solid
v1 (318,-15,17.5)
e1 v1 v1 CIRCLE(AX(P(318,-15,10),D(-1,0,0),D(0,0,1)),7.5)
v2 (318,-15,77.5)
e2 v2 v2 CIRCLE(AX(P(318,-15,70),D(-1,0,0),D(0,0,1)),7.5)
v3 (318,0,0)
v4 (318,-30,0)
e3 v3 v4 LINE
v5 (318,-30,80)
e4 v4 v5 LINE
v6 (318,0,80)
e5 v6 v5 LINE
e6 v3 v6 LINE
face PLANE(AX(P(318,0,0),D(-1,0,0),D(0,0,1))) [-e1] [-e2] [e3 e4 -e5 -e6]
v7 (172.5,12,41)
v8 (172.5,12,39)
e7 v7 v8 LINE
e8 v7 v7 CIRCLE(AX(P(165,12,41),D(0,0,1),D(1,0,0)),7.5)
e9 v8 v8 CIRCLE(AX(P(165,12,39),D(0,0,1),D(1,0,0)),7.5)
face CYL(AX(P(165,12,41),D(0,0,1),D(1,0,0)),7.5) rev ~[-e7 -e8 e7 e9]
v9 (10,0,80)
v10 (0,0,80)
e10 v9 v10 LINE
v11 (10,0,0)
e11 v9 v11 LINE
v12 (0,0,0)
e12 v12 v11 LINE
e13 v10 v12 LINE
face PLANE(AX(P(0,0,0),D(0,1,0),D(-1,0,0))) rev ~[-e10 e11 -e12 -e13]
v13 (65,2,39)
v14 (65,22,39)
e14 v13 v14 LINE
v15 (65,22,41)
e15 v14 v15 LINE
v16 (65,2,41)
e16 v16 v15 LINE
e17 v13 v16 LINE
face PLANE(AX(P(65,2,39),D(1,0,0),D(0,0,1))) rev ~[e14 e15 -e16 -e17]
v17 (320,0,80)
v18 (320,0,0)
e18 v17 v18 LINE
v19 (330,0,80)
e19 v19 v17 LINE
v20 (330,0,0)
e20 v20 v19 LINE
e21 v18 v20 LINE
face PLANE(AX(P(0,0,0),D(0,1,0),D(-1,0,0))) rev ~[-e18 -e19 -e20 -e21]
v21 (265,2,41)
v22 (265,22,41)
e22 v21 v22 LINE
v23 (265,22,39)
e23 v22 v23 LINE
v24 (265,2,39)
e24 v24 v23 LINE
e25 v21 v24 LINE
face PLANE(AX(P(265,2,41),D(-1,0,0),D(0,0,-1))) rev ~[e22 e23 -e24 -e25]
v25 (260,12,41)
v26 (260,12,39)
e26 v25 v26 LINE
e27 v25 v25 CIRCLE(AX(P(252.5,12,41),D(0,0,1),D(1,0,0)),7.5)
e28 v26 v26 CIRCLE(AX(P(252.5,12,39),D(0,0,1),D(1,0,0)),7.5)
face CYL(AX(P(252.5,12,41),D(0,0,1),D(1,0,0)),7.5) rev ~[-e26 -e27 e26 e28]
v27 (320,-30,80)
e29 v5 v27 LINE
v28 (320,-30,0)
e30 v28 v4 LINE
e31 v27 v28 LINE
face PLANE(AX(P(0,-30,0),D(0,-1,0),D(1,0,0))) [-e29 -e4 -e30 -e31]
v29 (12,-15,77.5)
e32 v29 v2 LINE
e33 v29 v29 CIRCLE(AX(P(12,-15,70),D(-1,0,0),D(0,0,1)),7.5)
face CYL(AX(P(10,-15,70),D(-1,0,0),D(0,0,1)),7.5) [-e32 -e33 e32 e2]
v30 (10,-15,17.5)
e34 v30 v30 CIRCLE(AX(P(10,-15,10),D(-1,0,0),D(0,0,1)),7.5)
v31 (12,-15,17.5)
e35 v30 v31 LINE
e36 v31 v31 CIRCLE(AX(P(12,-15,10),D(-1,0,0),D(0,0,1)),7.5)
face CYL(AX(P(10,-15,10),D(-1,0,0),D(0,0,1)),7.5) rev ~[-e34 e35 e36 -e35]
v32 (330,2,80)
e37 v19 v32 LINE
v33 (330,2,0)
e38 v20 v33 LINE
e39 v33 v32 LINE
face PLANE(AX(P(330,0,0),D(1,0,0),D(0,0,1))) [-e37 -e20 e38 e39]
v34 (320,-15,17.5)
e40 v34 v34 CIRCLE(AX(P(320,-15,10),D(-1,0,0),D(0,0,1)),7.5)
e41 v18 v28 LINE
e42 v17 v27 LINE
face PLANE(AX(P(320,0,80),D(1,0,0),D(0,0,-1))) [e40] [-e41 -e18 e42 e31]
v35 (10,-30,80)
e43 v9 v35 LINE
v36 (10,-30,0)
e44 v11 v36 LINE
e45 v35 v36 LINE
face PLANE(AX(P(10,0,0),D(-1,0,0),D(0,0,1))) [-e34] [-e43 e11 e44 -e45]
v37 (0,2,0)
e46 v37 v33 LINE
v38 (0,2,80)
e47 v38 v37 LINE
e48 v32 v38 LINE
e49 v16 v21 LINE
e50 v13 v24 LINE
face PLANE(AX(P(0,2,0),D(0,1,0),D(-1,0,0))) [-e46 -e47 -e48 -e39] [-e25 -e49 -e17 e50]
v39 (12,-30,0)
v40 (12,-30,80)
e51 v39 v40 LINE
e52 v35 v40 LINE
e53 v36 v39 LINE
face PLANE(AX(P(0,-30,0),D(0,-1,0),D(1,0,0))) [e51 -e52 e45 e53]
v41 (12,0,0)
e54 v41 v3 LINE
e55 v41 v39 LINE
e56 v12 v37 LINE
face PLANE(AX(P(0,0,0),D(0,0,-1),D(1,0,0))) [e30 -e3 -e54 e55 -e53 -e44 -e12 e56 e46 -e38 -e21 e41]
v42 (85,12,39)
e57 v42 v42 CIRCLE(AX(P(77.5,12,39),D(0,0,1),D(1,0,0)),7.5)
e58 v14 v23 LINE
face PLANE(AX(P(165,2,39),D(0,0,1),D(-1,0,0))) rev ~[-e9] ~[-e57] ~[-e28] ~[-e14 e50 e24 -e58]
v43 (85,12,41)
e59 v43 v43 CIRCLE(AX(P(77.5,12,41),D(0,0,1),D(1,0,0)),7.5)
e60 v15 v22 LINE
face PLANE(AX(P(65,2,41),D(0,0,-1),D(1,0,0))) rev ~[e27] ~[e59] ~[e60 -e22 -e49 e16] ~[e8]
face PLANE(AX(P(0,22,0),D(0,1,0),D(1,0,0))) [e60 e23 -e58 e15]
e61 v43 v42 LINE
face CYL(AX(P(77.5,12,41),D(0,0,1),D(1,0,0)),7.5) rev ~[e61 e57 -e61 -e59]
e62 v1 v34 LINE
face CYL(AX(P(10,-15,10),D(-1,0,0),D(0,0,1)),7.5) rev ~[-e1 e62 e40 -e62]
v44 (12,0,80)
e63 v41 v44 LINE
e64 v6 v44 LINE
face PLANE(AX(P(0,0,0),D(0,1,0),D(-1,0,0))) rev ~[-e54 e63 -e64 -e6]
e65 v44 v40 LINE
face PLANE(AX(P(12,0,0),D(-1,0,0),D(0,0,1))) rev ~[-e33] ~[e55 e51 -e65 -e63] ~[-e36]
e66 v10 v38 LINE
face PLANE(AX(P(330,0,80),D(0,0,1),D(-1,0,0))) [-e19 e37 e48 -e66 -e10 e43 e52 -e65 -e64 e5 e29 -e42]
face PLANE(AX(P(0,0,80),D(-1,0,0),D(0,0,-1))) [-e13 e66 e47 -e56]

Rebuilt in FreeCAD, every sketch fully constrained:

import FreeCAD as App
import Part
import Sketcher

doc = App.newDocument("Part")
body = doc.addObject("PartDesign::Body", "Body")

sketch1 = body.newObject("Sketcher::SketchObject", "Sketch")
sketch1.AttachmentSupport = (doc.getObject("XZ_Plane"), [""])
sketch1.MapMode = "FlatFace"
sketch1.addGeometry(Part.LineSegment(App.Vector(330, 0, 0), App.Vector(0, 0, 0)), False)
sketch1.addGeometry(Part.LineSegment(App.Vector(0, 0, 0), App.Vector(0, 80, 0)), False)
sketch1.addGeometry(Part.LineSegment(App.Vector(0, 80, 0), App.Vector(330, 80, 0)), False)
sketch1.addGeometry(Part.LineSegment(App.Vector(330, 80, 0), App.Vector(330, 0, 0)), False)
sketch1.addConstraint(Sketcher.Constraint("Coincident", 0, 2, 1, 1))
sketch1.addConstraint(Sketcher.Constraint("Coincident", 1, 2, 2, 1))
sketch1.addConstraint(Sketcher.Constraint("Coincident", 2, 2, 3, 1))
sketch1.addConstraint(Sketcher.Constraint("Coincident", 3, 2, 0, 1))
sketch1.addConstraint(Sketcher.Constraint("Horizontal", 0))
sketch1.addConstraint(Sketcher.Constraint("Vertical", 1))
sketch1.addConstraint(Sketcher.Constraint("Horizontal", 2))
sketch1.addConstraint(Sketcher.Constraint("Vertical", 3))
sketch1.addConstraint(Sketcher.Constraint("Coincident", 0, 2, -1, 1))
sketch1.addConstraint(Sketcher.Constraint("DistanceX", 0, 2, 0, 1, 330.0))
sketch1.addConstraint(Sketcher.Constraint("DistanceY", 1, 1, 1, 2, 80.0))
pad1 = body.newObject("PartDesign::Pad", "Pad")
pad1.Profile = sketch1
pad1.Length = 2
pad1.Reversed = True

sketch2 = body.newObject("Sketcher::SketchObject", "Sketch001")
sketch2.AttachmentSupport = (doc.getObject("XZ_Plane"), [""])
sketch2.MapMode = "FlatFace"
sketch2.AttachmentOffset = App.Placement(App.Vector(0, 0, -2), App.Rotation())
sketch2.addGeometry(Part.LineSegment(App.Vector(265, 39, 0), App.Vector(65, 39, 0)), False)
sketch2.addGeometry(Part.LineSegment(App.Vector(65, 39, 0), App.Vector(65, 41, 0)), False)
sketch2.addGeometry(Part.LineSegment(App.Vector(65, 41, 0), App.Vector(265, 41, 0)), False)
sketch2.addGeometry(Part.LineSegment(App.Vector(265, 41, 0), App.Vector(265, 39, 0)), False)
sketch2.addConstraint(Sketcher.Constraint("Coincident", 0, 2, 1, 1))
sketch2.addConstraint(Sketcher.Constraint("Coincident", 1, 2, 2, 1))
sketch2.addConstraint(Sketcher.Constraint("Coincident", 2, 2, 3, 1))
sketch2.addConstraint(Sketcher.Constraint("Coincident", 3, 2, 0, 1))
sketch2.addConstraint(Sketcher.Constraint("Horizontal", 0))
sketch2.addConstraint(Sketcher.Constraint("Vertical", 1))
sketch2.addConstraint(Sketcher.Constraint("Horizontal", 2))
sketch2.addConstraint(Sketcher.Constraint("Vertical", 3))
sketch2.addConstraint(Sketcher.Constraint("DistanceX", 0, 2, 0, 1, 200.0))
sketch2.addConstraint(Sketcher.Constraint("DistanceY", 1, 1, 1, 2, 2.0))
sketch2.addConstraint(Sketcher.Constraint("DistanceX", -1, 1, 0, 2, 65.0))
sketch2.addConstraint(Sketcher.Constraint("DistanceY", -1, 1, 0, 2, 39.0))
pad2 = body.newObject("PartDesign::Pad", "Pad001")
pad2.Profile = sketch2
pad2.Length = 20
pad2.Reversed = True

sketch3 = body.newObject("Sketcher::SketchObject", "Sketch002")
sketch3.AttachmentSupport = (doc.getObject("XY_Plane"), [""])
sketch3.MapMode = "FlatFace"
sketch3.AttachmentOffset = App.Placement(App.Vector(0, 0, 41), App.Rotation())
sketch3.addGeometry(Part.Circle(App.Vector(165, 12, 0), App.Vector(0, 0, 1), 8), False)
sketch3.addGeometry(Part.Circle(App.Vector(78, 12, 0), App.Vector(0, 0, 1), 8), False)
sketch3.addGeometry(Part.Circle(App.Vector(252, 12, 0), App.Vector(0, 0, 1), 8), False)
sketch3.addConstraint(Sketcher.Constraint("Equal", 0, 1))
sketch3.addConstraint(Sketcher.Constraint("Equal", 1, 2))
sketch3.addConstraint(Sketcher.Constraint("Horizontal", 0, 3, 1, 3))
sketch3.addConstraint(Sketcher.Constraint("Horizontal", 1, 3, 2, 3))
sketch3.addConstraint(Sketcher.Constraint("Diameter", 0, 15.0))
sketch3.addConstraint(Sketcher.Constraint("DistanceX", -1, 1, 0, 3, 165.0))
sketch3.addConstraint(Sketcher.Constraint("DistanceY", -1, 1, 0, 3, 12.0))
sketch3.addConstraint(Sketcher.Constraint("DistanceX", 1, 3, 2, 3, 175.0))
sketch3.addConstraint(Sketcher.Constraint("DistanceX", -1, 1, 1, 3, 77.5))
pocket1 = body.newObject("PartDesign::Pocket", "Pocket")
pocket1.Profile = sketch3
pocket1.Type = "ThroughAll"

sketch4 = body.newObject("Sketcher::SketchObject", "Sketch003")
sketch4.AttachmentSupport = (doc.getObject("XZ_Plane"), [""])
sketch4.MapMode = "FlatFace"
sketch4.addGeometry(Part.LineSegment(App.Vector(12, 80, 0), App.Vector(10, 80, 0)), False)
sketch4.addGeometry(Part.LineSegment(App.Vector(10, 80, 0), App.Vector(10, 0, 0)), False)
sketch4.addGeometry(Part.LineSegment(App.Vector(10, 0, 0), App.Vector(12, 0, 0)), False)
sketch4.addGeometry(Part.LineSegment(App.Vector(12, 0, 0), App.Vector(12, 80, 0)), False)
sketch4.addGeometry(Part.LineSegment(App.Vector(320, 80, 0), App.Vector(318, 80, 0)), False)
sketch4.addGeometry(Part.LineSegment(App.Vector(318, 80, 0), App.Vector(318, 0, 0)), False)
sketch4.addGeometry(Part.LineSegment(App.Vector(318, 0, 0), App.Vector(320, 0, 0)), False)
sketch4.addGeometry(Part.LineSegment(App.Vector(320, 0, 0), App.Vector(320, 80, 0)), False)
sketch4.addConstraint(Sketcher.Constraint("Coincident", 0, 2, 1, 1))
sketch4.addConstraint(Sketcher.Constraint("Coincident", 1, 2, 2, 1))
sketch4.addConstraint(Sketcher.Constraint("Coincident", 2, 2, 3, 1))
sketch4.addConstraint(Sketcher.Constraint("Coincident", 3, 2, 0, 1))
sketch4.addConstraint(Sketcher.Constraint("Coincident", 4, 2, 5, 1))
sketch4.addConstraint(Sketcher.Constraint("Coincident", 5, 2, 6, 1))
sketch4.addConstraint(Sketcher.Constraint("Coincident", 6, 2, 7, 1))
sketch4.addConstraint(Sketcher.Constraint("Coincident", 7, 2, 4, 1))
sketch4.addConstraint(Sketcher.Constraint("Horizontal", 0))
sketch4.addConstraint(Sketcher.Constraint("Vertical", 1))
sketch4.addConstraint(Sketcher.Constraint("Horizontal", 2))
sketch4.addConstraint(Sketcher.Constraint("Vertical", 3))
sketch4.addConstraint(Sketcher.Constraint("Horizontal", 4))
sketch4.addConstraint(Sketcher.Constraint("Vertical", 5))
sketch4.addConstraint(Sketcher.Constraint("Horizontal", 6))
sketch4.addConstraint(Sketcher.Constraint("Vertical", 7))
sketch4.addConstraint(Sketcher.Constraint("PointOnObject", 1, 2, -1))
sketch4.addConstraint(Sketcher.Constraint("PointOnObject", 5, 2, -1))
sketch4.addConstraint(Sketcher.Constraint("Horizontal", 3, 2, 4, 2))
sketch4.addConstraint(Sketcher.Constraint("Equal", 2, 4))
sketch4.addConstraint(Sketcher.Constraint("DistanceX", 0, 2, 0, 1, 2.0))
sketch4.addConstraint(Sketcher.Constraint("DistanceY", 1, 2, 1, 1, 80.0))
sketch4.addConstraint(Sketcher.Constraint("DistanceX", -1, 1, 0, 2, 10.0))
sketch4.addConstraint(Sketcher.Constraint("DistanceX", -1, 1, 4, 2, 318.0))
pad3 = body.newObject("PartDesign::Pad", "Pad002")
pad3.Profile = sketch4
pad3.Length = 30

sketch5 = body.newObject("Sketcher::SketchObject", "Sketch004")
sketch5.AttachmentSupport = (doc.getObject("YZ_Plane"), [""])
sketch5.MapMode = "FlatFace"
sketch5.AttachmentOffset = App.Placement(App.Vector(0, 0, 10), App.Rotation())
sketch5.addGeometry(Part.Circle(App.Vector(-15, 70, 0), App.Vector(0, 0, 1), 8), False)
sketch5.addConstraint(Sketcher.Constraint("Diameter", 0, 15.0))
sketch5.addConstraint(Sketcher.Constraint("DistanceX", 0, 3, -1, 1, 15.0))
sketch5.addConstraint(Sketcher.Constraint("DistanceY", -1, 1, 0, 3, 70.0))
pad4 = body.newObject("PartDesign::Pad", "Pad003")
pad4.Profile = sketch5
pad4.Length = 310

sketch6 = body.newObject("Sketcher::SketchObject", "Sketch005")
sketch6.AttachmentSupport = (doc.getObject("YZ_Plane"), [""])
sketch6.MapMode = "FlatFace"
sketch6.AttachmentOffset = App.Placement(App.Vector(0, 0, 10), App.Rotation())
sketch6.addGeometry(Part.Circle(App.Vector(-15, 10, 0), App.Vector(0, 0, 1), 8), False)
sketch6.addConstraint(Sketcher.Constraint("Diameter", 0, 15.0))
sketch6.addConstraint(Sketcher.Constraint("DistanceX", 0, 3, -1, 1, 15.0))
sketch6.addConstraint(Sketcher.Constraint("DistanceY", -1, 1, 0, 3, 10.0))
pocket2 = body.newObject("PartDesign::Pocket", "Pocket001")
pocket2.Profile = sketch6
pocket2.Type = "ThroughAll"
pocket2.Reversed = True

doc.recompute()
